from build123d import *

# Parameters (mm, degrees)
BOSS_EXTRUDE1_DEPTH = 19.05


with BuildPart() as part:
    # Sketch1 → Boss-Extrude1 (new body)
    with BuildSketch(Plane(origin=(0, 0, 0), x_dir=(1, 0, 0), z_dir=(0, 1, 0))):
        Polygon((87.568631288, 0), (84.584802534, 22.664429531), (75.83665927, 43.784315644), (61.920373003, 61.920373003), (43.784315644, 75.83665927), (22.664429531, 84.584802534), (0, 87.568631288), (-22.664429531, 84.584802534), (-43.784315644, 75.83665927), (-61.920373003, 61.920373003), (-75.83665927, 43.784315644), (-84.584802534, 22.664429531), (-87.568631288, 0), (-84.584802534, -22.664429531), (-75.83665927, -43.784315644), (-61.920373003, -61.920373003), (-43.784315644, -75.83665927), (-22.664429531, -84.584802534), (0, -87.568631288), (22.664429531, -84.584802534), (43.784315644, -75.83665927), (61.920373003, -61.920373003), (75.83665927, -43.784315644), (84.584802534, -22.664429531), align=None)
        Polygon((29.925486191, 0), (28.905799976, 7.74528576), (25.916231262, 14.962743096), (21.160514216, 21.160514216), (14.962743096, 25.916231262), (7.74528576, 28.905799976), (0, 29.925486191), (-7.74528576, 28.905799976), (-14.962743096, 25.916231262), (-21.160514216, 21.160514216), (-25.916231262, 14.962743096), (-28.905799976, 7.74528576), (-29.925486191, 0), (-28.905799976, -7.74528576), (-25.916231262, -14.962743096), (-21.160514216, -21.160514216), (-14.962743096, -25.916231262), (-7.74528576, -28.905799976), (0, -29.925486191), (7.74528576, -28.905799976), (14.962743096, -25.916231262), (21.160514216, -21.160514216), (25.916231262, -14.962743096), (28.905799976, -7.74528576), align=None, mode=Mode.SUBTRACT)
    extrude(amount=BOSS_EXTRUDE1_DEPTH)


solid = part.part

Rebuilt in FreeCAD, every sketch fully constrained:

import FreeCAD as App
import Part
import Sketcher

V = App.Vector
Q = App.Units.Quantity

doc = App.newDocument("Part")
body = doc.addObject("PartDesign::Body", "Body")

# Sketch on XZ plane
sketch1 = body.newObject("Sketcher::SketchObject", "Sketch")
sketch1.AttachmentSupport = (doc.getObject("XZ_Plane"), [""])
sketch1.MapMode = "FlatFace"
sketch1.addGeometry([
    Part.LineSegment(V(87.568631, 0, 0), V(84.584803, -22.66443, 0)),  # 0
    Part.LineSegment(V(84.584803, -22.66443, 0), V(75.836659, -43.784316, 0)),  # 1
    Part.LineSegment(V(75.836659, -43.784316, 0), V(61.920373, -61.920373, 0)),  # 2
    Part.LineSegment(V(61.920373, -61.920373, 0), V(43.784316, -75.836659, 0)),  # 3
    Part.LineSegment(V(43.784316, -75.836659, 0), V(22.66443, -84.584803, 0)),  # 4
    Part.LineSegment(V(22.66443, -84.584803, 0), V(0, -87.568631, 0)),  # 5
    Part.LineSegment(V(0, -87.568631, 0), V(-22.66443, -84.584803, 0)),  # 6
    Part.LineSegment(V(-22.66443, -84.584803, 0), V(-43.784316, -75.836659, 0)),  # 7
    Part.LineSegment(V(-43.784316, -75.836659, 0), V(-61.920373, -61.920373, 0)),  # 8
    Part.LineSegment(V(-61.920373, -61.920373, 0), V(-75.836659, -43.784316, 0)),  # 9
    Part.LineSegment(V(-75.836659, -43.784316, 0), V(-84.584803, -22.66443, 0)),  # 10
    Part.LineSegment(V(-84.584803, -22.66443, 0), V(-87.568631, 0, 0)),  # 11
    Part.LineSegment(V(-87.568631, 0, 0), V(-84.584803, 22.66443, 0)),  # 12
    Part.LineSegment(V(-84.584803, 22.66443, 0), V(-75.836659, 43.784316, 0)),  # 13
    Part.LineSegment(V(-75.836659, 43.784316, 0), V(-61.920373, 61.920373, 0)),  # 14
    Part.LineSegment(V(-61.920373, 61.920373, 0), V(-43.784316, 75.836659, 0)),  # 15
    Part.LineSegment(V(-43.784316, 75.836659, 0), V(-22.66443, 84.584803, 0)),  # 16
    Part.LineSegment(V(-22.66443, 84.584803, 0), V(0, 87.568631, 0)),  # 17
    Part.LineSegment(V(0, 87.568631, 0), V(22.66443, 84.584803, 0)),  # 18
    Part.LineSegment(V(22.66443, 84.584803, 0), V(43.784316, 75.836659, 0)),  # 19
    Part.LineSegment(V(43.784316, 75.836659, 0), V(61.920373, 61.920373, 0)),  # 20
    Part.LineSegment(V(61.920373, 61.920373, 0), V(75.836659, 43.784316, 0)),  # 21
    Part.LineSegment(V(75.836659, 43.784316, 0), V(84.584803, 22.66443, 0)),  # 22
    Part.LineSegment(V(84.584803, 22.66443, 0), V(87.568631, 0, 0)),  # 23
    Part.LineSegment(V(28.9058, -7.745286, 0), V(29.925486, 0, 0)),  # 24
    Part.LineSegment(V(29.925486, 0, 0), V(28.9058, 7.745286, 0)),  # 25
    Part.LineSegment(V(28.9058, 7.745286, 0), V(25.916231, 14.962743, 0)),  # 26
    Part.LineSegment(V(25.916231, 14.962743, 0), V(21.160514, 21.160514, 0)),  # 27
    Part.LineSegment(V(21.160514, 21.160514, 0), V(14.962743, 25.916231, 0)),  # 28
    Part.LineSegment(V(14.962743, 25.916231, 0), V(7.745286, 28.9058, 0)),  # 29
    Part.LineSegment(V(7.745286, 28.9058, 0), V(0, 29.925486, 0)),  # 30
    Part.LineSegment(V(0, 29.925486, 0), V(-7.745286, 28.9058, 0)),  # 31
    Part.LineSegment(V(-7.745286, 28.9058, 0), V(-14.962743, 25.916231, 0)),  # 32
    Part.LineSegment(V(-14.962743, 25.916231, 0), V(-21.160514, 21.160514, 0)),  # 33
    Part.LineSegment(V(-21.160514, 21.160514, 0), V(-25.916231, 14.962743, 0)),  # 34
    Part.LineSegment(V(-25.916231, 14.962743, 0), V(-28.9058, 7.745286, 0)),  # 35
    Part.LineSegment(V(-28.9058, 7.745286, 0), V(-29.925486, 0, 0)),  # 36
    Part.LineSegment(V(-29.925486, 0, 0), V(-28.9058, -7.745286, 0)),  # 37
    Part.LineSegment(V(-28.9058, -7.745286, 0), V(-25.916231, -14.962743, 0)),  # 38
    Part.LineSegment(V(-25.916231, -14.962743, 0), V(-21.160514, -21.160514, 0)),  # 39
    Part.LineSegment(V(-21.160514, -21.160514, 0), V(-14.962743, -25.916231, 0)),  # 40
    Part.LineSegment(V(-14.962743, -25.916231, 0), V(-7.745286, -28.9058, 0)),  # 41
    Part.LineSegment(V(-7.745286, -28.9058, 0), V(0, -29.925486, 0)),  # 42
    Part.LineSegment(V(0, -29.925486, 0), V(7.745286, -28.9058, 0)),  # 43
    Part.LineSegment(V(7.745286, -28.9058, 0), V(14.962743, -25.916231, 0)),  # 44
    Part.LineSegment(V(14.962743, -25.916231, 0), V(21.160514, -21.160514, 0)),  # 45
    Part.LineSegment(V(21.160514, -21.160514, 0), V(25.916231, -14.962743, 0)),  # 46
    Part.LineSegment(V(25.916231, -14.962743, 0), V(28.9058, -7.745286, 0)),  # 47
], False)
sketch1.addConstraint([
    Sketcher.Constraint("Coincident", 0, 2, 1, 1),
    Sketcher.Constraint("Coincident", 1, 2, 2, 1),
    Sketcher.Constraint("Coincident", 2, 2, 3, 1),
    Sketcher.Constraint("Coincident", 3, 2, 4, 1),
    Sketcher.Constraint("Coincident", 4, 2, 5, 1),
    Sketcher.Constraint("Coincident", 5, 2, 6, 1),
    Sketcher.Constraint("Coincident", 6, 2, 7, 1),
    Sketcher.Constraint("Coincident", 7, 2, 8, 1),
    Sketcher.Constraint("Coincident", 8, 2, 9, 1),
    Sketcher.Constraint("Coincident", 9, 2, 10, 1),
    Sketcher.Constraint("Coincident", 10, 2, 11, 1),
    Sketcher.Constraint("Coincident", 11, 2, 12, 1),
    Sketcher.Constraint("Coincident", 12, 2, 13, 1),
    Sketcher.Constraint("Coincident", 13, 2, 14, 1),
    Sketcher.Constraint("Coincident", 14, 2, 15, 1),
    Sketcher.Constraint("Coincident", 15, 2, 16, 1),
    Sketcher.Constraint("Coincident", 16, 2, 17, 1),
    Sketcher.Constraint("Coincident", 17, 2, 18, 1),
    Sketcher.Constraint("Coincident", 18, 2, 19, 1),
    Sketcher.Constraint("Coincident", 19, 2, 20, 1),
    Sketcher.Constraint("Coincident", 20, 2, 21, 1),
    Sketcher.Constraint("Coincident", 21, 2, 22, 1),
    Sketcher.Constraint("Coincident", 22, 2, 23, 1),
    Sketcher.Constraint("Coincident", 23, 2, 0, 1),
    Sketcher.Constraint("Coincident", 24, 2, 25, 1),
    Sketcher.Constraint("Coincident", 25, 2, 26, 1),
    Sketcher.Constraint("Coincident", 26, 2, 27, 1),
    Sketcher.Constraint("Coincident", 27, 2, 28, 1),
    Sketcher.Constraint("Coincident", 28, 2, 29, 1),
    Sketcher.Constraint("Coincident", 29, 2, 30, 1),
    Sketcher.Constraint("Coincident", 30, 2, 31, 1),
    Sketcher.Constraint("Coincident", 31, 2, 32, 1),
    Sketcher.Constraint("Coincident", 32, 2, 33, 1),
    Sketcher.Constraint("Coincident", 33, 2, 34, 1),
    Sketcher.Constraint("Coincident", 34, 2, 35, 1),
    Sketcher.Constraint("Coincident", 35, 2, 36, 1),
    Sketcher.Constraint("Coincident", 36, 2, 37, 1),
    Sketcher.Constraint("Coincident", 37, 2, 38, 1),
    Sketcher.Constraint("Coincident", 38, 2, 39, 1),
    Sketcher.Constraint("Coincident", 39, 2, 40, 1),
    Sketcher.Constraint("Coincident", 40, 2, 41, 1),
    Sketcher.Constraint("Coincident", 41, 2, 42, 1),
    Sketcher.Constraint("Coincident", 42, 2, 43, 1),
    Sketcher.Constraint("Coincident", 43, 2, 44, 1),
    Sketcher.Constraint("Coincident", 44, 2, 45, 1),
    Sketcher.Constraint("Coincident", 45, 2, 46, 1),
    Sketcher.Constraint("Coincident", 46, 2, 47, 1),
    Sketcher.Constraint("Coincident", 47, 2, 24, 1),
    Sketcher.Constraint("Symmetric", 0, 2, 12, 2, -1, 1),
    Sketcher.Constraint("Symmetric", 1, 2, 13, 2, -1, 1),
    Sketcher.Constraint("Symmetric", 2, 2, 14, 2, -1, 1),
    Sketcher.Constraint("Symmetric", 3, 2, 15, 2, -1, 1),
    Sketcher.Constraint("Symmetric", 4, 2, 16, 2, -1, 1),
    Sketcher.Constraint("Symmetric", 5, 2, 17, 2, -1, 1),
    Sketcher.Constraint("Symmetric", 6, 2, 18, 2, -1, 1),
    Sketcher.Constraint("Symmetric", 7, 2, 19, 2, -1, 1),
    Sketcher.Constraint("Symmetric", 8, 2, 20, 2, -1, 1),
    Sketcher.Constraint("Symmetric", 9, 2, 21, 2, -1, 1),
    Sketcher.Constraint("Symmetric", 10, 2, 22, 2, -1, 1),
    Sketcher.Constraint("Symmetric", 11, 2, 23, 2, -1, 1),
    Sketcher.Constraint("Symmetric", 24, 2, 36, 2, -1, 1),
    Sketcher.Constraint("Symmetric", 25, 2, 37, 2, -1, 1),
    Sketcher.Constraint("Symmetric", 26, 2, 38, 2, -1, 1),
    Sketcher.Constraint("Symmetric", 27, 2, 39, 2, -1, 1),
    Sketcher.Constraint("Symmetric", 28, 2, 40, 2, -1, 1),
    Sketcher.Constraint("Symmetric", 29, 2, 41, 2, -1, 1),
    Sketcher.Constraint("Symmetric", 30, 2, 42, 2, -1, 1),
    Sketcher.Constraint("Symmetric", 31, 2, 43, 2, -1, 1),
    Sketcher.Constraint("Symmetric", 32, 2, 44, 2, -1, 1),
    Sketcher.Constraint("Symmetric", 33, 2, 45, 2, -1, 1),
    Sketcher.Constraint("Symmetric", 34, 2, 46, 2, -1, 1),
    Sketcher.Constraint("Symmetric", 35, 2, 47, 2, -1, 1),
    Sketcher.Constraint("Symmetric", 4, 2, 6, 2, -2),
    Sketcher.Constraint("Symmetric", 3, 2, 7, 2, -2),
    Sketcher.Constraint("Symmetric", 2, 2, 8, 2, -2),
    Sketcher.Constraint("Symmetric", 1, 2, 9, 2, -2),
    Sketcher.Constraint("Symmetric", 0, 2, 10, 2, -2),
    Sketcher.Constraint("Symmetric", 29, 2, 31, 2, -2),
    Sketcher.Constraint("Symmetric", 28, 2, 32, 2, -2),
    Sketcher.Constraint("Symmetric", 27, 2, 33, 2, -2),
    Sketcher.Constraint("Symmetric", 26, 2, 34, 2, -2),
    Sketcher.Constraint("Symmetric", 25, 2, 35, 2, -2),
    Sketcher.Constraint("PointOnObject", 5, 2, -2),
    Sketcher.Constraint("PointOnObject", 11, 2, -1),
    Sketcher.Constraint("PointOnObject", 24, 2, -1),
    Sketcher.Constraint("PointOnObject", 30, 2, -2),
    Sketcher.Constraint("Perpendicular", 0, 6),
    Sketcher.Constraint("Perpendicular", 1, 7),
    Sketcher.Constraint("Perpendicular", 2, 8),
    Sketcher.Constraint("Perpendicular", 18, 24),
    Sketcher.Constraint("Parallel", 22, 26),
    Sketcher.Constraint("Parallel", 21, 27),
    Sketcher.Constraint("Parallel", 20, 28),
    Sketcher.Constraint("Parallel", 19, 29),
    Sketcher.Constraint("Perpendicular", 24, 30),
    Sketcher.Constraint("Equal", 0, 1),
    Sketcher.Constraint("Equal", 1, 2),
    Sketcher.Constraint("Equal", 2, 3),
    Sketcher.Constraint("Equal", 3, 4),
    Sketcher.Constraint("Equal", 4, 5),
    Sketcher.Constraint("Equal", 25, 26),
    Sketcher.Constraint("Equal", 26, 27),
    Sketcher.Constraint("Equal", 27, 28),
    Sketcher.Constraint("Equal", 28, 29),
    Sketcher.Constraint("Equal", 29, 30),
    Sketcher.Constraint("Distance", 0, Q("0.9 in")),
    Sketcher.Constraint("Angle", 0, Q("-97.5 deg")),
    Sketcher.Constraint("Angle", 1, Q("-112.5 deg")),
    Sketcher.Constraint("Angle", 2, Q("-127.5 deg")),
    Sketcher.Constraint("DistanceX", -1, 1, 25, 2, Q("28.9058 mm")),
])
pad1 = body.newObject("PartDesign::Pad", "Pad")
pad1.Profile = sketch1
pad1.Length = Q("0.75 in")
pad1.Reversed = True

doc.recompute()
